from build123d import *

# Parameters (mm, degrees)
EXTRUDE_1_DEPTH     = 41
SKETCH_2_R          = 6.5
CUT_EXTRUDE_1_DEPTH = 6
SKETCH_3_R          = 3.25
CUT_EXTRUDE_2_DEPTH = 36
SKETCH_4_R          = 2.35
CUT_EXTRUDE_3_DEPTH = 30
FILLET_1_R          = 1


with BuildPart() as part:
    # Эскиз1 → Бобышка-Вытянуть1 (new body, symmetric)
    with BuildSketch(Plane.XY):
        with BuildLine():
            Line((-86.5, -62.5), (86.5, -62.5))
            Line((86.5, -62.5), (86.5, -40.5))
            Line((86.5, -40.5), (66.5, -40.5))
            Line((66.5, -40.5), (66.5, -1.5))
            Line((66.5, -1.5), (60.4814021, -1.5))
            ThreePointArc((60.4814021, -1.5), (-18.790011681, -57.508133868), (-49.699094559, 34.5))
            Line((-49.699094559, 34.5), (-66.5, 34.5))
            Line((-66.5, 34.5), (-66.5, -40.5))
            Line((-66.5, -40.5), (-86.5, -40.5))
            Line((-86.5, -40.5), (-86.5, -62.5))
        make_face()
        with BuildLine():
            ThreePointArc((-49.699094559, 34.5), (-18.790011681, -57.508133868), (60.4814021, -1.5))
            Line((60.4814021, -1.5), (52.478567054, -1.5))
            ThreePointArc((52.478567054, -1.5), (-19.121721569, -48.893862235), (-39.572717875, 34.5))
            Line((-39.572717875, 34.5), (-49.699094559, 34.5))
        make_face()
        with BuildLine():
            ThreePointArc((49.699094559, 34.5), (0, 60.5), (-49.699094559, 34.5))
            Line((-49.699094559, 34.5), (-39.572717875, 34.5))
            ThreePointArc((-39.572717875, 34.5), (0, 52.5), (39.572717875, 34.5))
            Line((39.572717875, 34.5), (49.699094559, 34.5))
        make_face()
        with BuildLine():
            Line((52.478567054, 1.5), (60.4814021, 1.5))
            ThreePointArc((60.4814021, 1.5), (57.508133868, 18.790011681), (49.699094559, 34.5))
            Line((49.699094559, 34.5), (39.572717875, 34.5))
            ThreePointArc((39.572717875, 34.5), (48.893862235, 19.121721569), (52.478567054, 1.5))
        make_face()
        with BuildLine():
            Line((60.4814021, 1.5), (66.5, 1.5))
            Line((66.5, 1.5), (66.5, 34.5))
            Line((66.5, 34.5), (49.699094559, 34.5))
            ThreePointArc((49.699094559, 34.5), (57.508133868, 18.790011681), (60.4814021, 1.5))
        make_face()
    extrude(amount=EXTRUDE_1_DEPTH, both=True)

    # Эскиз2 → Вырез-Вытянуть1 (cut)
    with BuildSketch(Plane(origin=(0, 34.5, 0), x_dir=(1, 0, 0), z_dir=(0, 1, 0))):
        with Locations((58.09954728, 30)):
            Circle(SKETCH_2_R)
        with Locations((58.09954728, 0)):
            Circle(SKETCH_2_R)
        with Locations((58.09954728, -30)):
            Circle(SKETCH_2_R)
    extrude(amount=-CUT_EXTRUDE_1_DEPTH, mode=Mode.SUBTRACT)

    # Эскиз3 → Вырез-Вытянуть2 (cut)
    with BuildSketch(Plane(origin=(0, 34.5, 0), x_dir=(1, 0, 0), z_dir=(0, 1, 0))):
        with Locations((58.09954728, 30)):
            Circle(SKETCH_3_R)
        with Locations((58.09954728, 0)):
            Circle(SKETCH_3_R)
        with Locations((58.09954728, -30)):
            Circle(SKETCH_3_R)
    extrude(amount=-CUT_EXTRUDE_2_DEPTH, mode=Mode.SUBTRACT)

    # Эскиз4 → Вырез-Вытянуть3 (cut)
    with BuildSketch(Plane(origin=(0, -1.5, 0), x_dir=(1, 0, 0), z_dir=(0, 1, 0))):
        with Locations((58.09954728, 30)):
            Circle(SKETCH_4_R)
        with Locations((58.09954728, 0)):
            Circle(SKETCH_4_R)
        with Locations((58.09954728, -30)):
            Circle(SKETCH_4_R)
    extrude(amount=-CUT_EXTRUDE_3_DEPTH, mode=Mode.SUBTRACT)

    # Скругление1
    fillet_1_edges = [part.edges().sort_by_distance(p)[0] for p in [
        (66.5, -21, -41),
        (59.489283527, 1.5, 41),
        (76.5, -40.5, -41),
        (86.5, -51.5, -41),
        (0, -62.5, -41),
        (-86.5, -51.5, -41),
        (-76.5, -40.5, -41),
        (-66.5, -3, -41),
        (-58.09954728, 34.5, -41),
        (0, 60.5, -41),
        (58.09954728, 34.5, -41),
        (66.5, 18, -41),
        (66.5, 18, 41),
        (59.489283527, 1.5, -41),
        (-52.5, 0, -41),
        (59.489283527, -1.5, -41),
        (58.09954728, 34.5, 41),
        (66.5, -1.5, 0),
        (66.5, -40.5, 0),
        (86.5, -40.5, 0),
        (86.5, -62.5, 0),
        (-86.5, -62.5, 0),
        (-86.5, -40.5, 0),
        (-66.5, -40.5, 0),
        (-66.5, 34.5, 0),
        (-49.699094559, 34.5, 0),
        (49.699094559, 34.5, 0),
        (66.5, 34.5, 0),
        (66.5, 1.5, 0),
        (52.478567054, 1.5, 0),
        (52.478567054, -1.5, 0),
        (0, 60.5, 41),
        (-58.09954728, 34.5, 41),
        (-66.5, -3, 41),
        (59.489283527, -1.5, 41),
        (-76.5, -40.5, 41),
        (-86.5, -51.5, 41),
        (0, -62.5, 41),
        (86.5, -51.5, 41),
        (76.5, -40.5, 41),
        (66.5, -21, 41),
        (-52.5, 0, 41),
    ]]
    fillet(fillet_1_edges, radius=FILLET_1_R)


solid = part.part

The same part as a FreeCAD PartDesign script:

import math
import FreeCAD as App
import Part
import Sketcher
Q = App.Units.Quantity


def edges_at(feature, points):
    """Names of the edges that pass closest to the given points."""
    edges = feature.Shape.Edges
    near = lambda p: min(range(len(edges)), key=lambda i: edges[i].distToShape(Part.Vertex(*p))[0])
    return sorted({f"Edge{near(p) + 1}" for p in points})

doc = App.newDocument("Part")
body = doc.addObject("PartDesign::Body", "Body")

# Sketch on XY plane
sketch1 = doc.addObject("Sketcher::SketchObject", "Sketch")
body.addObject(sketch1)
sketch1.AttachmentSupport = (doc.XY_Plane, [""])
sketch1.MapMode = "FlatFace"
sketch1.addGeometry([
    Part.LineSegment(App.Vector(-86, -62, 0), App.Vector(86, -62, 0)),  # 0
    Part.LineSegment(App.Vector(86, -62, 0), App.Vector(86, -40, 0)),  # 1
    Part.LineSegment(App.Vector(86, -40, 0), App.Vector(66, -40, 0)),  # 2
    Part.LineSegment(App.Vector(66, -40, 0), App.Vector(66, -2, 0)),  # 3
    Part.LineSegment(App.Vector(66, -2, 0), App.Vector(52, -2, 0)),  # 4
    Part.ArcOfCircle(Part.Circle(App.Vector(0, 0, 0), App.Vector(0, 0, 1), 52), math.radians(139), math.radians(358)),  # 5
    Part.ArcOfCircle(Part.Circle(App.Vector(0, 0, 0), App.Vector(0, 0, 1), 52), math.radians(41), math.radians(139)),  # 6
    Part.ArcOfCircle(Part.Circle(App.Vector(0, 0, 0), App.Vector(0, 0, 1), 53), math.radians(2), math.radians(41)),  # 7
    Part.LineSegment(App.Vector(52, 2, 0), App.Vector(66, 2, 0)),  # 8
    Part.LineSegment(App.Vector(66, 2, 0), App.Vector(66, 34, 0)),  # 9
    Part.LineSegment(App.Vector(66, 34, 0), App.Vector(50, 34, 0)),  # 10
    Part.ArcOfCircle(Part.Circle(App.Vector(0, 0, 0), App.Vector(0, 0, 1), 60), math.radians(35), math.radians(145)),  # 11
    Part.LineSegment(App.Vector(-50, 34, 0), App.Vector(-66, 34, 0)),  # 12
    Part.LineSegment(App.Vector(-66, 34, 0), App.Vector(-66, -40, 0)),  # 13
    Part.LineSegment(App.Vector(-66, -40, 0), App.Vector(-86, -40, 0)),  # 14
    Part.LineSegment(App.Vector(-86, -40, 0), App.Vector(-86, -62, 0)),  # 15
], False)
sketch1.addConstraint([
    Sketcher.Constraint("Coincident", 0, 2, 1, 1),
    Sketcher.Constraint("Coincident", 1, 2, 2, 1),
    Sketcher.Constraint("Coincident", 2, 2, 3, 1),
    Sketcher.Constraint("Coincident", 3, 2, 4, 1),
    Sketcher.Constraint("Coincident", 4, 2, 5, 2),
    Sketcher.Constraint("Tangent", 5, 1, 6, 2),
    Sketcher.Constraint("Tangent", 6, 1, 7, 2),
    Sketcher.Constraint("Coincident", 7, 1, 8, 1),
    Sketcher.Constraint("Coincident", 8, 2, 9, 1),
    Sketcher.Constraint("Coincident", 9, 2, 10, 1),
    Sketcher.Constraint("Coincident", 10, 2, 11, 1),
    Sketcher.Constraint("Coincident", 11, 2, 12, 1),
    Sketcher.Constraint("Coincident", 12, 2, 13, 1),
    Sketcher.Constraint("Coincident", 13, 2, 14, 1),
    Sketcher.Constraint("Coincident", 14, 2, 15, 1),
    Sketcher.Constraint("Coincident", 15, 2, 0, 1),
    Sketcher.Constraint("Horizontal", 0),
    Sketcher.Constraint("Vertical", 1),
    Sketcher.Constraint("Horizontal", 2),
    Sketcher.Constraint("Vertical", 3),
    Sketcher.Constraint("Horizontal", 4),
    Sketcher.Constraint("Horizontal", 8),
    Sketcher.Constraint("Vertical", 9),
    Sketcher.Constraint("Horizontal", 10),
    Sketcher.Constraint("Horizontal", 12),
    Sketcher.Constraint("Vertical", 13),
    Sketcher.Constraint("Horizontal", 14),
    Sketcher.Constraint("Vertical", 15),
    Sketcher.Constraint("Coincident", 5, 3, -1, 1),
    Sketcher.Constraint("Coincident", 7, 3, -1, 1),
    Sketcher.Constraint("Coincident", 11, 3, -1, 1),
    Sketcher.Constraint("Symmetric", 9, 2, 12, 2, -2),
    Sketcher.Constraint("Symmetric", 2, 2, 13, 2, -2),
    Sketcher.Constraint("Horizontal", 5, 1, 6, 1),
    Sketcher.Constraint("Horizontal", 6, 1, 9, 2),
    Sketcher.Constraint("Vertical", 4, 2, 7, 1),
    Sketcher.Constraint("Equal", 2, 14),
    Sketcher.Constraint("Radius", 5, Q("52.5 mm")),
    Sketcher.Constraint("Radius", 11, Q("60.5 mm")),
    Sketcher.Constraint("DistanceX", 0, 1, 0, 2, Q("173 mm")),
    Sketcher.Constraint("DistanceX", 2, 2, 2, 1, Q("20 mm")),
    Sketcher.Constraint("DistanceY", 1, 1, 1, 2, Q("22 mm")),
    Sketcher.Constraint("DistanceY", 3, 1, 3, 2, Q("39 mm")),
    Sketcher.Constraint("DistanceY", 9, 1, 9, 2, Q("33 mm")),
    Sketcher.Constraint("DistanceY", 13, 2, 13, 1, Q("75 mm")),
])
pad1 = doc.addObject("PartDesign::Pad", "Pad")
body.addObject(pad1)
pad1.Profile = sketch1
pad1.Length = 82
pad1.Midplane = True

# Sketch on XZ plane
sketch2 = doc.addObject("Sketcher::SketchObject", "Sketch001")
body.addObject(sketch2)
sketch2.AttachmentSupport = (doc.XZ_Plane, [""])
sketch2.MapMode = "FlatFace"
sketch2.AttachmentOffset = App.Placement(App.Vector(0, 0, -34.5), App.Rotation())
sketch2.addGeometry([
    Part.Circle(App.Vector(58, -30, 0), App.Vector(0, 0, 1), 6),
    Part.Circle(App.Vector(58, 0, 0), App.Vector(0, 0, 1), 6),
    Part.Circle(App.Vector(58, 30, 0), App.Vector(0, 0, 1), 6),
], False)
sketch2.addConstraint([
    Sketcher.Constraint("Equal", 0, 1),
    Sketcher.Constraint("Equal", 1, 2),
    Sketcher.Constraint("Symmetric", 0, 3, 2, 3, -1),
    Sketcher.Constraint("PointOnObject", 1, 3, -1),
    Sketcher.Constraint("Vertical", 0, 3, 1, 3),
    Sketcher.Constraint("Diameter", 0, Q("13 mm")),
    Sketcher.Constraint("DistanceY", 0, 3, -1, 1, Q("30 mm")),
    Sketcher.Constraint("DistanceX", -1, 1, 0, 3, Q("58.099547 mm")),
])
pocket1 = doc.addObject("PartDesign::Pocket", "Pocket")
body.addObject(pocket1)
pocket1.Profile = sketch2
pocket1.Length = 6
pocket1.Reversed = True

# Sketch on XZ plane
sketch3 = doc.addObject("Sketcher::SketchObject", "Sketch002")
body.addObject(sketch3)
sketch3.AttachmentSupport = (doc.XZ_Plane, [""])
sketch3.MapMode = "FlatFace"
sketch3.AttachmentOffset = App.Placement(App.Vector(0, 0, -34.5), App.Rotation())
sketch3.addGeometry([
    Part.Circle(App.Vector(58.1, -30, 0), App.Vector(0, 0, 1), 3.2),
    Part.Circle(App.Vector(58.1, 0, 0), App.Vector(0, 0, 1), 3.2),
    Part.Circle(App.Vector(58.1, 30, 0), App.Vector(0, 0, 1), 3.2),
], False)
sketch3.addConstraint([
    Sketcher.Constraint("Equal", 0, 1),
    Sketcher.Constraint("Equal", 1, 2),
    Sketcher.Constraint("Symmetric", 0, 3, 2, 3, -1),
    Sketcher.Constraint("PointOnObject", 1, 3, -1),
    Sketcher.Constraint("Vertical", 0, 3, 1, 3),
    Sketcher.Constraint("Diameter", 0, Q("6.5 mm")),
    Sketcher.Constraint("DistanceY", 0, 3, -1, 1, Q("30 mm")),
    Sketcher.Constraint("DistanceX", -1, 1, 0, 3, Q("58.099547 mm")),
])
pocket2 = doc.addObject("PartDesign::Pocket", "Pocket001")
body.addObject(pocket2)
pocket2.Profile = sketch3
pocket2.Length = 36
pocket2.Reversed = True

# Sketch on XZ plane
sketch4 = doc.addObject("Sketcher::SketchObject", "Sketch003")
body.addObject(sketch4)
sketch4.AttachmentSupport = (doc.XZ_Plane, [""])
sketch4.MapMode = "FlatFace"
sketch4.AttachmentOffset = App.Placement(App.Vector(0, 0, 1.5), App.Rotation())
sketch4.addGeometry([
    Part.Circle(App.Vector(58.1, -30, 0), App.Vector(0, 0, 1), 2.4),
    Part.Circle(App.Vector(58.1, 0, 0), App.Vector(0, 0, 1), 2.4),
    Part.Circle(App.Vector(58.1, 30, 0), App.Vector(0, 0, 1), 2.4),
], False)
sketch4.addConstraint([
    Sketcher.Constraint("Equal", 0, 1),
    Sketcher.Constraint("Equal", 1, 2),
    Sketcher.Constraint("Symmetric", 0, 3, 2, 3, -1),
    Sketcher.Constraint("PointOnObject", 1, 3, -1),
    Sketcher.Constraint("Vertical", 0, 3, 1, 3),
    Sketcher.Constraint("Diameter", 0, Q("4.7 mm")),
    Sketcher.Constraint("DistanceY", 0, 3, -1, 1, Q("30 mm")),
    Sketcher.Constraint("DistanceX", -1, 1, 0, 3, Q("58.099547 mm")),
])
pocket3 = doc.addObject("PartDesign::Pocket", "Pocket002")
body.addObject(pocket3)
pocket3.Profile = sketch4
pocket3.Length = 30
pocket3.Reversed = True
doc.recompute()

fillet = doc.addObject("PartDesign::Fillet", "Fillet")
body.addObject(fillet)
fillet.Base = (pocket3, edges_at(pocket3, [
    (66.5, -21, -41),
    (59.489, 1.5, 41),
    (76.5, -40.5, -41),
    (86.5, -51.5, -41),
    (0, -62.5, -41),
    (-86.5, -51.5, -41),
    (-76.5, -40.5, -41),
    (-66.5, -3, -41),
    (-58.1, 34.5, -41),
    (0, 60.5, -41),
    (58.1, 34.5, -41),
    (66.5, 18, -41),
    (66.5, 18, 41),
    (59.489, 1.5, -41),
    (-19.122, -48.894, -41),
    (59.489, -1.5, -41),
    (58.1, 34.5, 41),
    (66.5, -1.5, 0),
    (66.5, -40.5, 0),
    (86.5, -40.5, 0),
    (86.5, -62.5, 0),
    (-86.5, -62.5, 0),
    (-86.5, -40.5, 0),
    (-66.5, -40.5, 0),
    (-66.5, 34.5, 0),
    (-49.699, 34.5, 0),
    (49.699, 34.5, 0),
    (66.5, 34.5, 0),
    (66.5, 1.5, 0),
    (52.479, 1.5, 0),
    (52.479, -1.5, 0),
    (0, 60.5, 41),
    (-58.1, 34.5, 41),
    (-66.5, -3, 41),
    (59.489, -1.5, 41),
    (-76.5, -40.5, 41),
    (-86.5, -51.5, 41),
    (0, -62.5, 41),
    (86.5, -51.5, 41),
    (76.5, -40.5, 41),
    (66.5, -21, 41),
    (-19.122, -48.894, 41),
]))
fillet.Radius = 1

doc.recompute()
